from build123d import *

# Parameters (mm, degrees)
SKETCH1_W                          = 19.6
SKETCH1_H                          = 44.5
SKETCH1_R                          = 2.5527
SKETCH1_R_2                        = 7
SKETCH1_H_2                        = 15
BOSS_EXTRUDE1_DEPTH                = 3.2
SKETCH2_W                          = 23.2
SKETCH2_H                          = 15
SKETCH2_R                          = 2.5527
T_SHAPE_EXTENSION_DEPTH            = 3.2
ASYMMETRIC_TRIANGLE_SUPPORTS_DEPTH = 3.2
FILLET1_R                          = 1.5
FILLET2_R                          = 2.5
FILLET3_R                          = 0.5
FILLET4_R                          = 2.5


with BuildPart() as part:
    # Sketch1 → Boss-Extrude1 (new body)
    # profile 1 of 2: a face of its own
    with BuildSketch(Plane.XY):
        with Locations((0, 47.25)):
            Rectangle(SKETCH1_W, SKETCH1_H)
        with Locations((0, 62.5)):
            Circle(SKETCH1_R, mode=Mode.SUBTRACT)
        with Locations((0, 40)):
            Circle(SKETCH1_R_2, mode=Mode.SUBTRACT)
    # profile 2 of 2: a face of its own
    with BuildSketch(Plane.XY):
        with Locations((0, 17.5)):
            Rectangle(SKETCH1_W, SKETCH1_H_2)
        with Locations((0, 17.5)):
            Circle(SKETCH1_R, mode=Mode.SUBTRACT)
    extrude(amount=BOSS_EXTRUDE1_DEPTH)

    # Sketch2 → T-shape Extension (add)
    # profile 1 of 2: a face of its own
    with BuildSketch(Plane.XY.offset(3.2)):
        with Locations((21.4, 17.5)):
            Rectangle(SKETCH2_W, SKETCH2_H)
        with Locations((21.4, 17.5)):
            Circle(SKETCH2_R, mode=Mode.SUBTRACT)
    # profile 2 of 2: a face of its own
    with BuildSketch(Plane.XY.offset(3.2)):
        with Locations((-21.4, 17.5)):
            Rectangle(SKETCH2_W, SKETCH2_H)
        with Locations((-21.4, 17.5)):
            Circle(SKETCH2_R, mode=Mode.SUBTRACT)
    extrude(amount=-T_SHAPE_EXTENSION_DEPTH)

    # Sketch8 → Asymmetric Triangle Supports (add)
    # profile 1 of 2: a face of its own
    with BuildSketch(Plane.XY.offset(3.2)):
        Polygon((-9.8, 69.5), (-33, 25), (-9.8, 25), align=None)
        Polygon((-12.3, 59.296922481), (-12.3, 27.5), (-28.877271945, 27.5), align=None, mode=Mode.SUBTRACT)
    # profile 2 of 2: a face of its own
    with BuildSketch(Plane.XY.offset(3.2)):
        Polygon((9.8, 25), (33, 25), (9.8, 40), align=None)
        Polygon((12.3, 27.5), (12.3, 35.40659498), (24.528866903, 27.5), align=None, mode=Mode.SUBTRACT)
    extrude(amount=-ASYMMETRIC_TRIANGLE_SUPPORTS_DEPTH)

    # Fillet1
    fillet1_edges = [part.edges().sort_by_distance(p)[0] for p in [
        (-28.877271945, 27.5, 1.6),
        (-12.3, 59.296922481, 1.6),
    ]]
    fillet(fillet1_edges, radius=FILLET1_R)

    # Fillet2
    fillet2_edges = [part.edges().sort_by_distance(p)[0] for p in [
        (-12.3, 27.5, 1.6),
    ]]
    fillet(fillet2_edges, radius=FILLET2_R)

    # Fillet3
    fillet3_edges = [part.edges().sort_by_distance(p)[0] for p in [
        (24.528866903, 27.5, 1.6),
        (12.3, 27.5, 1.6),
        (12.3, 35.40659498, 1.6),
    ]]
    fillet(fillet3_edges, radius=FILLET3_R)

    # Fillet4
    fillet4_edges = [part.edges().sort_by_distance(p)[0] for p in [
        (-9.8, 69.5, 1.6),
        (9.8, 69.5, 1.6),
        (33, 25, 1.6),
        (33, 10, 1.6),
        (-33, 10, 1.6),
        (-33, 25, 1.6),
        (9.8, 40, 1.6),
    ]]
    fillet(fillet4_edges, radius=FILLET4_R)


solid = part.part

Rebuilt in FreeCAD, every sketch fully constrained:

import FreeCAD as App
import Part
import Sketcher

V = App.Vector
Q = App.Units.Quantity


def edges_at(feature, points):
    """Names of the edges that pass closest to the given points."""
    edges = feature.Shape.Edges
    near = lambda p: min(range(len(edges)), key=lambda i: edges[i].distToShape(Part.Vertex(*p))[0])
    return sorted({f"Edge{near(p) + 1}" for p in points})

doc = App.newDocument("Part")
body = doc.addObject("PartDesign::Body", "Body")

# Sketch on XY plane
sketch1 = body.newObject("Sketcher::SketchObject", "Sketch")
sketch1.AttachmentSupport = (doc.getObject("XY_Plane"), [""])
sketch1.MapMode = "FlatFace"
sketch1.addGeometry(Part.LineSegment(V(-9.8, 69.5, 0), V(-9.8, 10, 0)), False)
sketch1.addGeometry(Part.LineSegment(V(-9.8, 10, 0), V(9.8, 10, 0)), False)
sketch1.addGeometry(Part.LineSegment(V(9.8, 10, 0), V(9.8, 69.5, 0)), False)
sketch1.addGeometry(Part.LineSegment(V(9.8, 69.5, 0), V(-9.8, 69.5, 0)), False)
sketch1.addGeometry(Part.Circle(V(0, 40, 0), V(0, 0, 1), 7), False)
sketch1.addGeometry(Part.Circle(V(0, 62.5, 0), V(0, 0, 1), 2.5527), False)
sketch1.addGeometry(Part.Circle(V(0, 17.5, 0), V(0, 0, 1), 2.5527), False)
sketch1.addConstraint(Sketcher.Constraint("Coincident", 0, 2, 1, 1))
sketch1.addConstraint(Sketcher.Constraint("Coincident", 1, 2, 2, 1))
sketch1.addConstraint(Sketcher.Constraint("Coincident", 2, 2, 3, 1))
sketch1.addConstraint(Sketcher.Constraint("Coincident", 3, 2, 0, 1))
sketch1.addConstraint(Sketcher.Constraint("Vertical", 0))
sketch1.addConstraint(Sketcher.Constraint("Horizontal", 1))
sketch1.addConstraint(Sketcher.Constraint("Vertical", 2))
sketch1.addConstraint(Sketcher.Constraint("Horizontal", 3))
sketch1.addConstraint(Sketcher.Constraint("Equal", 5, 6))
sketch1.addConstraint(Sketcher.Constraint("PointOnObject", 4, 3, -2))
sketch1.addConstraint(Sketcher.Constraint("PointOnObject", 5, 3, -2))
sketch1.addConstraint(Sketcher.Constraint("PointOnObject", 6, 3, -2))
sketch1.addConstraint(Sketcher.Constraint("Diameter", 4, Q("14 mm")))
sketch1.addConstraint(Sketcher.Constraint("DistanceX", 1, 1, 1, 2, Q("19.6 mm")))
sketch1.addConstraint(Sketcher.Constraint("DistanceY", 0, 2, 0, 1, Q("59.5 mm")))
sketch1.addConstraint(Sketcher.Constraint("DistanceY", -1, 1, 4, 3, Q("40 mm")))
sketch1.addConstraint(Sketcher.Constraint("DistanceY", -1, 1, 0, 2, Q("10 mm")))
sketch1.addConstraint(Sketcher.Constraint("DistanceY", 6, 3, 5, 3, Q("45 mm")))
sketch1.addConstraint(Sketcher.Constraint("DistanceY", 5, 3, 2, 2, Q("7 mm")))
sketch1.addConstraint(Sketcher.Constraint("Diameter", 5, Q("5.1054 mm")))
sketch1.addConstraint(Sketcher.Constraint("DistanceX", 0, 2, -1, 1, Q("9.8 mm")))
pad1 = body.newObject("PartDesign::Pad", "Pad")
pad1.Profile = sketch1
pad1.Length = 3.2

# Sketch on XY plane
sketch2 = body.newObject("Sketcher::SketchObject", "Sketch001")
sketch2.AttachmentSupport = (doc.getObject("XY_Plane"), [""])
sketch2.MapMode = "FlatFace"
sketch2.AttachmentOffset = App.Placement(V(0, 0, 3.2), App.Rotation())
sketch2.addGeometry(Part.LineSegment(V(9.8, 25, 0), V(9.8, 10, 0)), False)
sketch2.addGeometry(Part.LineSegment(V(9.8, 10, 0), V(33, 10, 0)), False)
sketch2.addGeometry(Part.LineSegment(V(33, 10, 0), V(33, 25, 0)), False)
sketch2.addGeometry(Part.LineSegment(V(33, 25, 0), V(9.8, 25, 0)), False)
sketch2.addGeometry(Part.Circle(V(21.4, 17.5, 0), V(0, 0, 1), 2.5527), False)
sketch2.addGeometry(Part.LineSegment(V(-33, 25, 0), V(-33, 10, 0)), False)
sketch2.addGeometry(Part.LineSegment(V(-33, 10, 0), V(-9.8, 10, 0)), False)
sketch2.addGeometry(Part.LineSegment(V(-9.8, 10, 0), V(-9.8, 25, 0)), False)
sketch2.addGeometry(Part.LineSegment(V(-9.8, 25, 0), V(-33, 25, 0)), False)
sketch2.addGeometry(Part.Circle(V(-21.4, 17.5, 0), V(0, 0, 1), 2.5527), False)
sketch2.addConstraint(Sketcher.Constraint("Coincident", 0, 2, 1, 1))
sketch2.addConstraint(Sketcher.Constraint("Coincident", 1, 2, 2, 1))
sketch2.addConstraint(Sketcher.Constraint("Coincident", 2, 2, 3, 1))
sketch2.addConstraint(Sketcher.Constraint("Coincident", 3, 2, 0, 1))
sketch2.addConstraint(Sketcher.Constraint("Coincident", 5, 2, 6, 1))
sketch2.addConstraint(Sketcher.Constraint("Coincident", 6, 2, 7, 1))
sketch2.addConstraint(Sketcher.Constraint("Coincident", 7, 2, 8, 1))
sketch2.addConstraint(Sketcher.Constraint("Coincident", 8, 2, 5, 1))
sketch2.addConstraint(Sketcher.Constraint("Vertical", 0))
sketch2.addConstraint(Sketcher.Constraint("Horizontal", 1))
sketch2.addConstraint(Sketcher.Constraint("Vertical", 2))
sketch2.addConstraint(Sketcher.Constraint("Horizontal", 3))
sketch2.addConstraint(Sketcher.Constraint("Vertical", 5))
sketch2.addConstraint(Sketcher.Constraint("Horizontal", 6))
sketch2.addConstraint(Sketcher.Constraint("Vertical", 7))
sketch2.addConstraint(Sketcher.Constraint("Horizontal", 8))
sketch2.addConstraint(Sketcher.Constraint("Equal", 4, 9))
sketch2.addConstraint(Sketcher.Constraint("Symmetric", 4, 3, 9, 3, -2))
sketch2.addConstraint(Sketcher.Constraint("Symmetric", 1, 2, 5, 2, -2))
sketch2.addConstraint(Sketcher.Constraint("Symmetric", 3, 2, 7, 2, -2))
sketch2.addConstraint(Sketcher.Constraint("DistanceY", 0, 2, 0, 1, Q("15 mm")))
sketch2.addConstraint(Sketcher.Constraint("DistanceX", 1, 1, 1, 2, Q("23.2 mm")))
sketch2.addConstraint(Sketcher.Constraint("DistanceY", -1, 1, 0, 2, Q("10 mm")))
sketch2.addConstraint(Sketcher.Constraint("DistanceX", -1, 1, 1, 2, Q("33 mm")))
sketch2.addConstraint(Sketcher.Constraint("Diameter", 4, Q("5.1054 mm")))
sketch2.addConstraint(Sketcher.Constraint("DistanceX", -1, 1, 4, 3, Q("21.4 mm")))
sketch2.addConstraint(Sketcher.Constraint("DistanceY", -1, 1, 4, 3, Q("17.5 mm")))
pad2 = body.newObject("PartDesign::Pad", "Pad001")
pad2.Profile = sketch2
pad2.Length = 3.2
pad2.Reversed = True

# Sketch on XY plane
sketch3 = body.newObject("Sketcher::SketchObject", "Sketch002")
sketch3.AttachmentSupport = (doc.getObject("XY_Plane"), [""])
sketch3.MapMode = "FlatFace"
sketch3.AttachmentOffset = App.Placement(V(0, 0, 3.2), App.Rotation())
sketch3.addGeometry(Part.LineSegment(V(-9.8, 69.5, 0), V(-33, 25, 0)), False)
sketch3.addGeometry(Part.LineSegment(V(-33, 25, 0), V(-9.8, 25, 0)), False)
sketch3.addGeometry(Part.LineSegment(V(-9.8, 25, 0), V(-9.8, 69.5, 0)), False)
sketch3.addGeometry(Part.LineSegment(V(-28.877272, 27.5, 0), V(-12.3, 59.296922, 0)), False)
sketch3.addGeometry(Part.LineSegment(V(-12.3, 59.296922, 0), V(-12.3, 27.5, 0)), False)
sketch3.addGeometry(Part.LineSegment(V(-12.3, 27.5, 0), V(-28.877272, 27.5, 0)), False)
sketch3.addGeometry(Part.LineSegment(V(9.8, 25, 0), V(33, 25, 0)), False)
sketch3.addGeometry(Part.LineSegment(V(33, 25, 0), V(9.8, 40, 0)), False)
sketch3.addGeometry(Part.LineSegment(V(9.8, 40, 0), V(9.8, 25, 0)), False)
sketch3.addGeometry(Part.LineSegment(V(24.528867, 27.5, 0), V(12.3, 27.5, 0)), False)
sketch3.addGeometry(Part.LineSegment(V(12.3, 27.5, 0), V(12.3, 35.406595, 0)), False)
sketch3.addGeometry(Part.LineSegment(V(12.3, 35.406595, 0), V(24.528867, 27.5, 0)), False)
sketch3.addConstraint(Sketcher.Constraint("Coincident", 0, 2, 1, 1))
sketch3.addConstraint(Sketcher.Constraint("Coincident", 1, 2, 2, 1))
sketch3.addConstraint(Sketcher.Constraint("Coincident", 2, 2, 0, 1))
sketch3.addConstraint(Sketcher.Constraint("Coincident", 3, 2, 4, 1))
sketch3.addConstraint(Sketcher.Constraint("Coincident", 4, 2, 5, 1))
sketch3.addConstraint(Sketcher.Constraint("Coincident", 5, 2, 3, 1))
sketch3.addConstraint(Sketcher.Constraint("Coincident", 6, 2, 7, 1))
sketch3.addConstraint(Sketcher.Constraint("Coincident", 7, 2, 8, 1))
sketch3.addConstraint(Sketcher.Constraint("Coincident", 8, 2, 6, 1))
sketch3.addConstraint(Sketcher.Constraint("Coincident", 9, 2, 10, 1))
sketch3.addConstraint(Sketcher.Constraint("Coincident", 10, 2, 11, 1))
sketch3.addConstraint(Sketcher.Constraint("Coincident", 11, 2, 9, 1))
sketch3.addConstraint(Sketcher.Constraint("Horizontal", 1))
sketch3.addConstraint(Sketcher.Constraint("Vertical", 2))
sketch3.addConstraint(Sketcher.Constraint("Vertical", 4))
sketch3.addConstraint(Sketcher.Constraint("Horizontal", 5))
sketch3.addConstraint(Sketcher.Constraint("Horizontal", 6))
sketch3.addConstraint(Sketcher.Constraint("Vertical", 8))
sketch3.addConstraint(Sketcher.Constraint("Horizontal", 9))
sketch3.addConstraint(Sketcher.Constraint("Vertical", 10))
sketch3.addConstraint(Sketcher.Constraint("Symmetric", 0, 2, 6, 2, -2))
sketch3.addConstraint(Sketcher.Constraint("Symmetric", 4, 2, 9, 2, -2))
sketch3.addConstraint(Sketcher.Constraint("Parallel", 0, 3))
sketch3.addConstraint(Sketcher.Constraint("Parallel", 7, 11))
sketch3.addConstraint(Sketcher.Constraint("Equal", 1, 6))
sketch3.addConstraint(Sketcher.Constraint("DistanceY", 8, 2, 8, 1, Q("15 mm")))
sketch3.addConstraint(Sketcher.Constraint("DistanceX", 1, 1, 1, 2, Q("23.2 mm")))
sketch3.addConstraint(Sketcher.Constraint("DistanceY", 2, 1, 2, 2, Q("44.5 mm")))
sketch3.addConstraint(Sketcher.Constraint("DistanceX", 0, 2, -1, 1, Q("33 mm")))
sketch3.addConstraint(Sketcher.Constraint("DistanceY", -1, 1, 0, 2, Q("25 mm")))
sketch3.addConstraint(Sketcher.Constraint("DistanceY", 4, 2, 2, 2, Q("42 mm")))
sketch3.addConstraint(Sketcher.Constraint("DistanceX", 3, 2, -1, 1, Q("12.3 mm")))
sketch3.addConstraint(Sketcher.Constraint("DistanceX", 5, 2, 5, 1, Q("16.577272 mm")))
sketch3.addConstraint(Sketcher.Constraint("Distance", 11, Q("14.56226 mm")))
pad3 = body.newObject("PartDesign::Pad", "Pad002")
pad3.Profile = sketch3
pad3.Length = 3.2
pad3.Reversed = True
doc.recompute()

fillet = body.newObject("PartDesign::Fillet", "Fillet")
fillet.Base = (pad3, edges_at(pad3, [(-28.877, 27.5, 1.6), (-12.3, 59.297, 1.6)]))
fillet.Radius = 1.5
doc.recompute()

fillet2 = body.newObject("PartDesign::Fillet", "Fillet001")
fillet2.Base = (fillet, edges_at(fillet, [(-12.3, 27.5, 1.6)]))
fillet2.Radius = 2.5
doc.recompute()

fillet3 = body.newObject("PartDesign::Fillet", "Fillet002")
fillet3.Base = (fillet2, edges_at(fillet2, [(24.529, 27.5, 1.6), (12.3, 27.5, 1.6), (12.3, 35.407, 1.6)]))
fillet3.Radius = 0.5
doc.recompute()

fillet4 = body.newObject("PartDesign::Fillet", "Fillet003")
fillet4.Base = (fillet3, edges_at(fillet3, [
    (-9.8, 69.5, 1.6),
    (9.8, 69.5, 1.6),
    (33, 25, 1.6),
    (33, 10, 1.6),
    (-33, 10, 1.6),
    (-33, 25, 1.6),
    (9.8, 40, 1.6),
]))
fillet4.Radius = 2.5

doc.recompute()
